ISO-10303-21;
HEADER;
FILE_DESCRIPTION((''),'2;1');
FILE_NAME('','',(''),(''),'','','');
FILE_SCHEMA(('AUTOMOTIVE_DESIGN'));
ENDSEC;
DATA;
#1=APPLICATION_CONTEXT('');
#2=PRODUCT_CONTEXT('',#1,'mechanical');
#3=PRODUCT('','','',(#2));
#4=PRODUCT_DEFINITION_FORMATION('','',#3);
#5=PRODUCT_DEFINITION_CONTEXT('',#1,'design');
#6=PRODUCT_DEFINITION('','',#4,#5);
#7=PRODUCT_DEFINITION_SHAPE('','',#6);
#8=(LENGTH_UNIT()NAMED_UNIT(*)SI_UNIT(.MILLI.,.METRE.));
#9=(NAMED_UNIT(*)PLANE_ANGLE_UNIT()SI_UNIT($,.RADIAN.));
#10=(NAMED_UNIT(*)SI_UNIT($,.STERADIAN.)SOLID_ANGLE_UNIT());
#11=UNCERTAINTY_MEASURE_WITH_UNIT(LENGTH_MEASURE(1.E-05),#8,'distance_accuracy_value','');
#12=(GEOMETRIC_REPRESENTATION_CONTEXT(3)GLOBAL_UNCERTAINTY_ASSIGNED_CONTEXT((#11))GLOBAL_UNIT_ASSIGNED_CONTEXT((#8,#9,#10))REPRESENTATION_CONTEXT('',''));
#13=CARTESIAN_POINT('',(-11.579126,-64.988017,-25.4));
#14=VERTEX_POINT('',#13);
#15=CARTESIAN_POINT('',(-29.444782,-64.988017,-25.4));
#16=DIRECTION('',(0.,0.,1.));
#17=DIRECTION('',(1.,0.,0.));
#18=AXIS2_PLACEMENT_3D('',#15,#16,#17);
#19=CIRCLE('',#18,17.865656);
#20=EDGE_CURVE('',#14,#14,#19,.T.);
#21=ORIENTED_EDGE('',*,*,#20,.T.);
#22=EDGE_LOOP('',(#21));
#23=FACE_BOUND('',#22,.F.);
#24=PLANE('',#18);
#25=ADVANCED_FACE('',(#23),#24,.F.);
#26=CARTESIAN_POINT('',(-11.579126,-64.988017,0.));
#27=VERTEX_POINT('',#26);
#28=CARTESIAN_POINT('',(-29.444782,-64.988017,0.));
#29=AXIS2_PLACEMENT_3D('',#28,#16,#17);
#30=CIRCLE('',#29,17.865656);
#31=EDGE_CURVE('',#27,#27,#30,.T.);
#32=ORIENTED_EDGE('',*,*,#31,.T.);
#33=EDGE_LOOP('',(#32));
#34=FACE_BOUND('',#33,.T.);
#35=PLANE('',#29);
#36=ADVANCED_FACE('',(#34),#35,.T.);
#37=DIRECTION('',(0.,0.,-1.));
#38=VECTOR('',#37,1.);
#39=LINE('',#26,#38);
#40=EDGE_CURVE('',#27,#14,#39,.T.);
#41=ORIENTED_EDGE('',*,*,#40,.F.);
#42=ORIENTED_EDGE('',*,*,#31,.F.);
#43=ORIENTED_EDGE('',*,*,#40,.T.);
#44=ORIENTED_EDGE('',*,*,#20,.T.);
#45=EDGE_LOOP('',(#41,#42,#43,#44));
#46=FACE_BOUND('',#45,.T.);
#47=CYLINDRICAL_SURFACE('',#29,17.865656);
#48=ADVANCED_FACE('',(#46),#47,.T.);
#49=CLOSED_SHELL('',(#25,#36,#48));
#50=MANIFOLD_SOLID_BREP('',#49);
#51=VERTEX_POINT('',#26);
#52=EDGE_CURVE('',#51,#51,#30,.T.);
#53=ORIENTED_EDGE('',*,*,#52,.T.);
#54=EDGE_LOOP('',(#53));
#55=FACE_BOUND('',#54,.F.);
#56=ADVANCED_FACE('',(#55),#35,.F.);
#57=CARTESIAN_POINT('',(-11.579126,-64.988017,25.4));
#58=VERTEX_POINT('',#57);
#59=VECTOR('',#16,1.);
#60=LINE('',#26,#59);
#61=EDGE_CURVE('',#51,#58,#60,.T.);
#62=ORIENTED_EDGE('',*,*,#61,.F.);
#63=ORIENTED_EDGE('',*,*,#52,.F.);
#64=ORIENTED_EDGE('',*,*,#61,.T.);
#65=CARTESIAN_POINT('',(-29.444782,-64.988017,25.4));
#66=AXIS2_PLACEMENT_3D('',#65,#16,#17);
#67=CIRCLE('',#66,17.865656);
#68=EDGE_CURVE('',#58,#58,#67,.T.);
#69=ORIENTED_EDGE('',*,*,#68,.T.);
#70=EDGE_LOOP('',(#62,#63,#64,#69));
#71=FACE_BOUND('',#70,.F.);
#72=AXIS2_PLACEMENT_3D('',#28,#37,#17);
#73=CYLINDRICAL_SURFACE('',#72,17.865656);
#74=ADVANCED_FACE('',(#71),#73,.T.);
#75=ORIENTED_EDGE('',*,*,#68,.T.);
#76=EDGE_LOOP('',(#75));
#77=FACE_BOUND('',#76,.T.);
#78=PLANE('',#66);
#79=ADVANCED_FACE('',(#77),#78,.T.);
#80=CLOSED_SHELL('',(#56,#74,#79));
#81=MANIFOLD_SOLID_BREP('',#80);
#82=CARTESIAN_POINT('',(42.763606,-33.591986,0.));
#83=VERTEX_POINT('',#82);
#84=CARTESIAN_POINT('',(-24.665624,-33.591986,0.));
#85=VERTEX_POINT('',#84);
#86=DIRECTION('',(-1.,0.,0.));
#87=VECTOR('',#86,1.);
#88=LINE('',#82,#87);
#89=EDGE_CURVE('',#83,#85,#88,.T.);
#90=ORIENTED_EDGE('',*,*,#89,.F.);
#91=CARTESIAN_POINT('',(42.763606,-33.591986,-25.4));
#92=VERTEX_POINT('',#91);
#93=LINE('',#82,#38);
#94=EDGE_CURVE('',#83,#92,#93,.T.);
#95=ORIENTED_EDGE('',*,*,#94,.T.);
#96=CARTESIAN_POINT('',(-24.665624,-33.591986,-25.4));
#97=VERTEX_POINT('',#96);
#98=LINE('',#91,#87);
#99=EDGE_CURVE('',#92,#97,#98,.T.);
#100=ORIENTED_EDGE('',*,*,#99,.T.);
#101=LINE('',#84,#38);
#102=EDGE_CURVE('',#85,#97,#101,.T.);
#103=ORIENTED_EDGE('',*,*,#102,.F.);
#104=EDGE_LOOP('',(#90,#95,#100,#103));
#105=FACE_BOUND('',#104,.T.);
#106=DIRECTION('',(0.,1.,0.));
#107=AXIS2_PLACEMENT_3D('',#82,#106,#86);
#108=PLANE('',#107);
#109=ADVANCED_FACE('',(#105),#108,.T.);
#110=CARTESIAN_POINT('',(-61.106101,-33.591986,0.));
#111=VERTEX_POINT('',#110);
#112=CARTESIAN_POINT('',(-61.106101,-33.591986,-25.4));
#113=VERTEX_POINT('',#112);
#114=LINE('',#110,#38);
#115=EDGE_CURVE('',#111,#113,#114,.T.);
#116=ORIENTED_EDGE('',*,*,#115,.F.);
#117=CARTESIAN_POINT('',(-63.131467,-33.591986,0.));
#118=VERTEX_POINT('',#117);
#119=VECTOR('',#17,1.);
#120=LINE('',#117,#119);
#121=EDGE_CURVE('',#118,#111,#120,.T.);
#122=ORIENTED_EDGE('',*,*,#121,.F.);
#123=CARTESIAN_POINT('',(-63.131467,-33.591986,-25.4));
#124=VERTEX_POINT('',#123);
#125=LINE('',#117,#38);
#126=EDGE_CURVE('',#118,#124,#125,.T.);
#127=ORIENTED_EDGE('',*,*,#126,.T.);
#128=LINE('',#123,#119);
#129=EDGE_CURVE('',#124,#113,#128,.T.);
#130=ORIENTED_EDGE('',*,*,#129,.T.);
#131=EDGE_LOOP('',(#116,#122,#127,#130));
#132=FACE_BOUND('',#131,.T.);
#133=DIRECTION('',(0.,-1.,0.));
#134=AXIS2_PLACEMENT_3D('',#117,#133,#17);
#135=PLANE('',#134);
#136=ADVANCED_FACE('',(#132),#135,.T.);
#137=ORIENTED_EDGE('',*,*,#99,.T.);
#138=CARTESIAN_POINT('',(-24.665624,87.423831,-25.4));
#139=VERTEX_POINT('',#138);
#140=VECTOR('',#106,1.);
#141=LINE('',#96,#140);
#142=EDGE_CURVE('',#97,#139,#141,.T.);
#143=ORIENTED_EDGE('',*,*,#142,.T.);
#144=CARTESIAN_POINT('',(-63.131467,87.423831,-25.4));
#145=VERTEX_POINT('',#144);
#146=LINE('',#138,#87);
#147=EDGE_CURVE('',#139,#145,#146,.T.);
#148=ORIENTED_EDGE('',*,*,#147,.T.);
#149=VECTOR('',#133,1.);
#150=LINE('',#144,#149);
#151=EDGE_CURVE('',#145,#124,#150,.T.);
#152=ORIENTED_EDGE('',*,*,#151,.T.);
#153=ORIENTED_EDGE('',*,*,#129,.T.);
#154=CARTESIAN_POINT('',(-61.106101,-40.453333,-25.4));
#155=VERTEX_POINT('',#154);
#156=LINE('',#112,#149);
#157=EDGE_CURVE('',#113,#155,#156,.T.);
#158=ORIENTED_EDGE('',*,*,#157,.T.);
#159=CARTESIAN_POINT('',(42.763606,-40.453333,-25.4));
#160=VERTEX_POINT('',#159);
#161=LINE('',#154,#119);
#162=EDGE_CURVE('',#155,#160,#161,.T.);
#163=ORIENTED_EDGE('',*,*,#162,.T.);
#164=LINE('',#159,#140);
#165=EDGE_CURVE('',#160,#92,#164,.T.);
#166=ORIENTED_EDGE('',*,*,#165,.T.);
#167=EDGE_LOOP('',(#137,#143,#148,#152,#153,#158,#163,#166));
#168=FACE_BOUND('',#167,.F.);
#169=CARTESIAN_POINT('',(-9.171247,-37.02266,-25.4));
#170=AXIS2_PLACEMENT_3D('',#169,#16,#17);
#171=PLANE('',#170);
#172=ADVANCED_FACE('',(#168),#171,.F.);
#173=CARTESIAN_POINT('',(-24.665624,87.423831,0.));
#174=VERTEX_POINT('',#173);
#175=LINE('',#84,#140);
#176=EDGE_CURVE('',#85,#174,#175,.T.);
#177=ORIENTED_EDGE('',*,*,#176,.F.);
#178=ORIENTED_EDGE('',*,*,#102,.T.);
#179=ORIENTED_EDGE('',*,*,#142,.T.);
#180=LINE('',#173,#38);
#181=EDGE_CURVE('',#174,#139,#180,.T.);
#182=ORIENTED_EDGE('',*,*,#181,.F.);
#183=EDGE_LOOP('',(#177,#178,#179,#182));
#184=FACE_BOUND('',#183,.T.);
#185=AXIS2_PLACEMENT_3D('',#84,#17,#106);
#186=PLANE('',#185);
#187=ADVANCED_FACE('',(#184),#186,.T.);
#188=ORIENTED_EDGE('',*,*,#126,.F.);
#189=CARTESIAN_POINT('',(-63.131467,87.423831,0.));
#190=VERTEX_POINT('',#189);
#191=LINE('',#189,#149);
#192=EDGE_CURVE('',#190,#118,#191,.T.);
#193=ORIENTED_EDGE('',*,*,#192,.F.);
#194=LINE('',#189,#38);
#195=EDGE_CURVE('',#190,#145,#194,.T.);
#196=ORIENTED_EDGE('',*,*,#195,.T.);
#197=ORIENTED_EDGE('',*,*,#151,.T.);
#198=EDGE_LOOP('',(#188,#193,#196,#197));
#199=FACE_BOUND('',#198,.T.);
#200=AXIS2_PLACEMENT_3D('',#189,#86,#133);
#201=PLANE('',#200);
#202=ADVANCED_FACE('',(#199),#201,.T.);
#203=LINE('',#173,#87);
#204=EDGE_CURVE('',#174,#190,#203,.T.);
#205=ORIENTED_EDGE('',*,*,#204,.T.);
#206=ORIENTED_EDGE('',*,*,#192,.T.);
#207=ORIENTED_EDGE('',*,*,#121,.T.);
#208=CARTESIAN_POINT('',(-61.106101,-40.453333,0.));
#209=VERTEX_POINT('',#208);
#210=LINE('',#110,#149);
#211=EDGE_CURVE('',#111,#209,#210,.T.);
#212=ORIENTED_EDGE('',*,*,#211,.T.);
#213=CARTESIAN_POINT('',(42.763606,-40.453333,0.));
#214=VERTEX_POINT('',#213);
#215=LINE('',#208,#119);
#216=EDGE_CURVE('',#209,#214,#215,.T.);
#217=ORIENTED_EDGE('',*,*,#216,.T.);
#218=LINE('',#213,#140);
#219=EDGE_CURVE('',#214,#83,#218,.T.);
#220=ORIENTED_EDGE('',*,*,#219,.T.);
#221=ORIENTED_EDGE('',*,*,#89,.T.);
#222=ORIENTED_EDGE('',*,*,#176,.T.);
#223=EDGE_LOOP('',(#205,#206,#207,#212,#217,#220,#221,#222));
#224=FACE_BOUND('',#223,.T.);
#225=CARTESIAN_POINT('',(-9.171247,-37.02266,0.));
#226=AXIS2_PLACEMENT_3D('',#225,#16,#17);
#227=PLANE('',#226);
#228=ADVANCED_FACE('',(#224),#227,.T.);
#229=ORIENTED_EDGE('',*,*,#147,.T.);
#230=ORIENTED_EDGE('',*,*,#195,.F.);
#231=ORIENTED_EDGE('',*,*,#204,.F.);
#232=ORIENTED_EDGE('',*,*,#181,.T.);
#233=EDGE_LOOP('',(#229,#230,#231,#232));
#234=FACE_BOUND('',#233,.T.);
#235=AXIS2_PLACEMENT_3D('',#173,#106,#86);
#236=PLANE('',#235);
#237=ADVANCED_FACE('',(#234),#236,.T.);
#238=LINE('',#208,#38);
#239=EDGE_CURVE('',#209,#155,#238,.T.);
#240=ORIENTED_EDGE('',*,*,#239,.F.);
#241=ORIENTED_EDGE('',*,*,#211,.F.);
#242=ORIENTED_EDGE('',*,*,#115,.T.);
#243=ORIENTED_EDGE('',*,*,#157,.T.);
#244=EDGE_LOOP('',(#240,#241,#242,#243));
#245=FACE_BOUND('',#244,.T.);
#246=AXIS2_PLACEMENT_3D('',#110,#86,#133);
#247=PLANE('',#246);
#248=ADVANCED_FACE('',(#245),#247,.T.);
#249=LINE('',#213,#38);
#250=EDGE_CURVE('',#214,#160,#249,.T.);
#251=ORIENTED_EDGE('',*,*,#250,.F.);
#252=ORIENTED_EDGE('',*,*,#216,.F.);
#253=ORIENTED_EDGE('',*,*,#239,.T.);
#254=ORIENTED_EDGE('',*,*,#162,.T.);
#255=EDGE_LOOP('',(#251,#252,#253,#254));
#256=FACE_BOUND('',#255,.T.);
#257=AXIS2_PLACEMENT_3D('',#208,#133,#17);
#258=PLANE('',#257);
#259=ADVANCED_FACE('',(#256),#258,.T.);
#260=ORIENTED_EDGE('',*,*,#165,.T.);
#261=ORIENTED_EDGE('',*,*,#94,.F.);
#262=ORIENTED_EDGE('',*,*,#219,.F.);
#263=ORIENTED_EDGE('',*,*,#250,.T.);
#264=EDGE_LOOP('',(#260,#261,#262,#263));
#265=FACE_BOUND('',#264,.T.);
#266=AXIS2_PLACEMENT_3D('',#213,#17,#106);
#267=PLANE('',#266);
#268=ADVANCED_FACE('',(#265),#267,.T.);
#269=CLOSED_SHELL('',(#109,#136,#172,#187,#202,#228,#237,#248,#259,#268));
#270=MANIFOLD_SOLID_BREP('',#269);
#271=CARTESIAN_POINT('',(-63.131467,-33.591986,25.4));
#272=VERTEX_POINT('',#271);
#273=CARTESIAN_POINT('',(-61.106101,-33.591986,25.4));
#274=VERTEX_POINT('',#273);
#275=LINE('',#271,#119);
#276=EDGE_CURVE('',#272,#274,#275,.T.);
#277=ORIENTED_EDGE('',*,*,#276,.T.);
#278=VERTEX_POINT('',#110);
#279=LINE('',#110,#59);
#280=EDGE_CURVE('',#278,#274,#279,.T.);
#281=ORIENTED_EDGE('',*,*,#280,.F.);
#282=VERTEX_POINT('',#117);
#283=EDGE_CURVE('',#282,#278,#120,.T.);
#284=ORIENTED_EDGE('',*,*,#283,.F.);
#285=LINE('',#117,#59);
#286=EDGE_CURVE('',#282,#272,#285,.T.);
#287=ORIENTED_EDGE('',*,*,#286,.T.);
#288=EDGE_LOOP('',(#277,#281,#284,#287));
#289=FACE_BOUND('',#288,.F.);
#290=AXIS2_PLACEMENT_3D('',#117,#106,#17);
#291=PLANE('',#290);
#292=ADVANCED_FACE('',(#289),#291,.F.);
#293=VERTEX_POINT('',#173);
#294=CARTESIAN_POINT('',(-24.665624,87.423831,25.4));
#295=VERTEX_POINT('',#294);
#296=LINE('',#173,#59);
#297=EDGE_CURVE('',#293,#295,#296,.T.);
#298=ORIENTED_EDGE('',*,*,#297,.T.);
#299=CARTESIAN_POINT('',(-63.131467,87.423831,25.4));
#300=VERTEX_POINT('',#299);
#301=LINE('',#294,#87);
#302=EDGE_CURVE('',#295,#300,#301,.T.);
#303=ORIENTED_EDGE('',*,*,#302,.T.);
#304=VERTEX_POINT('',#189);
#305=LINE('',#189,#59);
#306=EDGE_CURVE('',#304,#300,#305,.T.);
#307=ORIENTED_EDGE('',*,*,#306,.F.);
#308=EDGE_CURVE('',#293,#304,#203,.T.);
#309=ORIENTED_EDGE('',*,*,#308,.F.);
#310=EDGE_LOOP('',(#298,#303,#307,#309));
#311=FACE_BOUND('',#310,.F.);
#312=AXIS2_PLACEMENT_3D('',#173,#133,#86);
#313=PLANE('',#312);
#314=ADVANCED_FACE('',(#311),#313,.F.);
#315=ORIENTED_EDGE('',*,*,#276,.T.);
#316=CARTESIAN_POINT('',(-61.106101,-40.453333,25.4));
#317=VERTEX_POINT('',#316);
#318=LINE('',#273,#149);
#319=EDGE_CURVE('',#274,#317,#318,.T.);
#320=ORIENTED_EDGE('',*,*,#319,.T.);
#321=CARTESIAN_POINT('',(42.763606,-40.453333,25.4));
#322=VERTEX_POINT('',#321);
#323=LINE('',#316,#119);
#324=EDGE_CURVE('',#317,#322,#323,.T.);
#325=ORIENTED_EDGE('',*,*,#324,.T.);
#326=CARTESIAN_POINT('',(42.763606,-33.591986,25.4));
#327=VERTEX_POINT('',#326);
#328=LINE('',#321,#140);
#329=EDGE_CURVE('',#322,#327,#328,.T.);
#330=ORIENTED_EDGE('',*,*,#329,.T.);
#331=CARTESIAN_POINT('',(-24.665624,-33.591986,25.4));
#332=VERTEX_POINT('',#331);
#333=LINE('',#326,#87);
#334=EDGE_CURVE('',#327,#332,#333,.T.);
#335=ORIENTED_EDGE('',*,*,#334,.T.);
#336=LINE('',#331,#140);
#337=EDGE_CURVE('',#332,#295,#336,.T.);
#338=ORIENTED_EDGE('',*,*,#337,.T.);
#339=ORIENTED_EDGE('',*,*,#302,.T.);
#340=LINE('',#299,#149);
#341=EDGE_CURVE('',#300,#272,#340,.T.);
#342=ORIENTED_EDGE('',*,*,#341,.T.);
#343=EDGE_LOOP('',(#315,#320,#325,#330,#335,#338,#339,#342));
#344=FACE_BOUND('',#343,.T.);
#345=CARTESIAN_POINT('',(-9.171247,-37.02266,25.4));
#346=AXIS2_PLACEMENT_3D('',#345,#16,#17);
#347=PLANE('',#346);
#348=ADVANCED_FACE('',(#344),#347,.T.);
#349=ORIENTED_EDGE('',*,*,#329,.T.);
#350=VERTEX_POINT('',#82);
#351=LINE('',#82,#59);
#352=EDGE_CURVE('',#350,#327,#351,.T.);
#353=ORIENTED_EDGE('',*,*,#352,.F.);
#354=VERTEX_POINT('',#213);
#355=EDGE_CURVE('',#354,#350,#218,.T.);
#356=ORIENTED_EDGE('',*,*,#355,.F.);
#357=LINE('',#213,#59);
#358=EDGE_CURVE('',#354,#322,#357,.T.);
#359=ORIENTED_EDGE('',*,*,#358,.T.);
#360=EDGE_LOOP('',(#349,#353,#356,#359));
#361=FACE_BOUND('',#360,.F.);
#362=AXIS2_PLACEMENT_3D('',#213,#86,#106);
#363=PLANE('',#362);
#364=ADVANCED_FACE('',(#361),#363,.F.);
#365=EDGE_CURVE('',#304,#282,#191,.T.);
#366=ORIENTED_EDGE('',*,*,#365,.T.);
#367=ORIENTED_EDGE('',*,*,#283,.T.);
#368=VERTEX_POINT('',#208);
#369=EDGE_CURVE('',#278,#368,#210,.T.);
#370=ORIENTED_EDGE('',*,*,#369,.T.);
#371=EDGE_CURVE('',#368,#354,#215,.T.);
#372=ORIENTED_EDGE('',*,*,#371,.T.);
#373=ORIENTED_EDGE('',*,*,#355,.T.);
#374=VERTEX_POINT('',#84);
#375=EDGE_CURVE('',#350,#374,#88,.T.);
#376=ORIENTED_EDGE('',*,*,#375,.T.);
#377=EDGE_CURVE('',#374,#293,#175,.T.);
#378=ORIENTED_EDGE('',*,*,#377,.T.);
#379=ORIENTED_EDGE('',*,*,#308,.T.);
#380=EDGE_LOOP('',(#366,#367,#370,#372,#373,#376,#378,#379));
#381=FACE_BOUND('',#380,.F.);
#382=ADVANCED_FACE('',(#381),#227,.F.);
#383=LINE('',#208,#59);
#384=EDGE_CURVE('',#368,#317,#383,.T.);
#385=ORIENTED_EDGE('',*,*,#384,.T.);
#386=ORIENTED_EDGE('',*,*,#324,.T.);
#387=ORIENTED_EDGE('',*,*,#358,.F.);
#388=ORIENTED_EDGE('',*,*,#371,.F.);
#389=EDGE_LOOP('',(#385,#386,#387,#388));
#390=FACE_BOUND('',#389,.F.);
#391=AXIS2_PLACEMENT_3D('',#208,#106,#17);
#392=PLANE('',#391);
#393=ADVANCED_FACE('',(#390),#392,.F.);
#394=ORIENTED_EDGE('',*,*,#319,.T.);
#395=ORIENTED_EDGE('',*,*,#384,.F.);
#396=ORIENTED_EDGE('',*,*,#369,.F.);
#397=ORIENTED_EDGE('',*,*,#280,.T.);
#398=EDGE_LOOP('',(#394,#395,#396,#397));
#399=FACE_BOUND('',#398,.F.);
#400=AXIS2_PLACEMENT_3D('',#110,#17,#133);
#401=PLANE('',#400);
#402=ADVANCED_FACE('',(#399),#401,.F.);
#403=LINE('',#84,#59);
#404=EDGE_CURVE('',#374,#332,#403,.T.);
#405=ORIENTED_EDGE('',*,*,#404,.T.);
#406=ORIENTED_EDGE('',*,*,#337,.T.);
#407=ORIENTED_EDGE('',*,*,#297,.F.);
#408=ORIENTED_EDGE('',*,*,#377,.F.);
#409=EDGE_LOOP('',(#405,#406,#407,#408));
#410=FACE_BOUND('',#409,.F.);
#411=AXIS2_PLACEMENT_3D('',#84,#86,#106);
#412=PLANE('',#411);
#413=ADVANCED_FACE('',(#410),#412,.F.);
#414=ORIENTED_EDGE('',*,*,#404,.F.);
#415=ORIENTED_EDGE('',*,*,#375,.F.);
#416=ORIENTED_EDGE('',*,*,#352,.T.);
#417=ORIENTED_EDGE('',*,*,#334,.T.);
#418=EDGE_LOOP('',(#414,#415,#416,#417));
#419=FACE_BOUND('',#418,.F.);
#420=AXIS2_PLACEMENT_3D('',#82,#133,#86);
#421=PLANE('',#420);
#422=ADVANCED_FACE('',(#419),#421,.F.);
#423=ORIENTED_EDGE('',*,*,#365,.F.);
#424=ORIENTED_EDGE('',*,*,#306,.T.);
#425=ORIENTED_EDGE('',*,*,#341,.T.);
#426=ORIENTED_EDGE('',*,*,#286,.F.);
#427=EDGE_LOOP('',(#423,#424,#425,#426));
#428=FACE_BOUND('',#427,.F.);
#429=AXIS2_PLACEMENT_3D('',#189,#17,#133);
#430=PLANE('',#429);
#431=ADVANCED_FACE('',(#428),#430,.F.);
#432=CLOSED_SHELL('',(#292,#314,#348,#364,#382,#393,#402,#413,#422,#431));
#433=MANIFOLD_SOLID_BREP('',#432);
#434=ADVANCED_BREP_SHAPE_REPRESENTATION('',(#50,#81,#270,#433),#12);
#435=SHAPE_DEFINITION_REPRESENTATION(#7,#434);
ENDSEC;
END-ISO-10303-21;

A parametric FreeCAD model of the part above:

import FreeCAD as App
import Part
import Sketcher


def add_polygon(sketch, points):
    """Adds a closed chain of lines whose ends are joined by coincident constraints."""
    first, n = sketch.GeometryCount, len(points)
    for a, b in zip(points, points[1:] + points[:1]):
        sketch.addGeometry(Part.LineSegment(App.Vector(*a, 0), App.Vector(*b, 0)), False)
    for i in range(n):
        sketch.addConstraint(Sketcher.Constraint("Coincident", first + i, 2, first + (i + 1) % n, 1))

doc = App.newDocument("Part")
params = doc.addObject("Spreadsheet::Sheet", "Params")
for row, (alias, value) in enumerate([
    ("pad1_length", "1 in"),
    ("pad2_length", "1 in"),
], start=1):
    params.set(f"A{row}", alias)
    params.set(f"B{row}", "=" + value)
    params.setAlias(f"B{row}", alias)

body = doc.addObject("PartDesign::Body", "Body")
body.AllowCompound = True

# Sketch on XY plane
sketch1 = body.newObject("Sketcher::SketchObject", "Sketch")
sketch1.AttachmentSupport = (doc.getObject("XY_Plane"), [""])
sketch1.MapMode = "FlatFace"
add_polygon(sketch1, [(-61.1, -40.5), (42.8, -40.5), (42.8, -33.6), (-24.7, -33.6), (-24.7, 87.4), (-63.1, 87.4), (-63.1, -33.6), (-61.1, -33.6)])  # lines 0-7
sketch1.addGeometry(Part.Circle(App.Vector(-29.4, -65, 0), App.Vector(0, 0, 1), 17.9), False)  # 8
sketch1.addConstraint(Sketcher.Constraint("Horizontal", 0))
sketch1.addConstraint(Sketcher.Constraint("Vertical", 1))
sketch1.addConstraint(Sketcher.Constraint("Horizontal", 2))
sketch1.addConstraint(Sketcher.Constraint("Vertical", 3))
sketch1.addConstraint(Sketcher.Constraint("Horizontal", 4))
sketch1.addConstraint(Sketcher.Constraint("Vertical", 5))
sketch1.addConstraint(Sketcher.Constraint("Horizontal", 6))
sketch1.addConstraint(Sketcher.Constraint("Vertical", 7))
sketch1.addConstraint(Sketcher.Constraint("Horizontal", 2, 2, 5, 2))
sketch1.addConstraint(Sketcher.Constraint("Diameter", 8, 35.731312))
sketch1.addConstraint(Sketcher.Constraint("DistanceX", 2, 2, 2, 1, 67.42923))
sketch1.addConstraint(Sketcher.Constraint("DistanceX", 6, 2, -1, 1, 61.106101))
sketch1.addConstraint(Sketcher.Constraint("DistanceX", 0, 1, 0, 2, 103.869707))
sketch1.addConstraint(Sketcher.Constraint("DistanceX", 4, 2, 4, 1, 38.465843))
sketch1.addConstraint(Sketcher.Constraint("DistanceY", 1, 1, 1, 2, 6.861347))
sketch1.addConstraint(Sketcher.Constraint("DistanceY", 3, 1, 3, 2, 121.015817))
sketch1.addConstraint(Sketcher.Constraint("DistanceX", 8, 3, -1, 1, 29.444782))
sketch1.addConstraint(Sketcher.Constraint("DistanceY", -1, 1, 3, 2, 87.423831))
sketch1.addConstraint(Sketcher.Constraint("DistanceY", 8, 3, 1, 2, 31.396031))
pad1 = body.newObject("PartDesign::Pad", "Pad")
pad1.Profile = sketch1
pad1.setExpression("Length", "Params.pad1_length")
pad1.Reversed = True
body2 = doc.addObject("PartDesign::Body", "Body001")
body2.AllowCompound = True

# Sketch on XY plane
sketch2 = body2.newObject("Sketcher::SketchObject", "Sketch001")
sketch2.AttachmentSupport = (doc.getObject("XY_Plane001"), [""])
sketch2.MapMode = "FlatFace"
add_polygon(sketch2, [(-61.1, -40.5), (42.8, -40.5), (42.8, -33.6), (-24.7, -33.6), (-24.7, 87.4), (-63.1, 87.4), (-63.1, -33.6), (-61.1, -33.6)])  # lines 0-7
sketch2.addGeometry(Part.Circle(App.Vector(-29.4, -65, 0), App.Vector(0, 0, 1), 17.9), False)  # 8
sketch2.addConstraint(Sketcher.Constraint("Horizontal", 0))
sketch2.addConstraint(Sketcher.Constraint("Vertical", 1))
sketch2.addConstraint(Sketcher.Constraint("Horizontal", 2))
sketch2.addConstraint(Sketcher.Constraint("Vertical", 3))
sketch2.addConstraint(Sketcher.Constraint("Horizontal", 4))
sketch2.addConstraint(Sketcher.Constraint("Vertical", 5))
sketch2.addConstraint(Sketcher.Constraint("Horizontal", 6))
sketch2.addConstraint(Sketcher.Constraint("Vertical", 7))
sketch2.addConstraint(Sketcher.Constraint("Horizontal", 2, 2, 5, 2))
sketch2.addConstraint(Sketcher.Constraint("Diameter", 8, 35.731312))
sketch2.addConstraint(Sketcher.Constraint("DistanceX", 2, 2, 2, 1, 67.42923))
sketch2.addConstraint(Sketcher.Constraint("DistanceX", 6, 2, -1, 1, 61.106101))
sketch2.addConstraint(Sketcher.Constraint("DistanceX", 0, 1, 0, 2, 103.869707))
sketch2.addConstraint(Sketcher.Constraint("DistanceX", 4, 2, 4, 1, 38.465843))
sketch2.addConstraint(Sketcher.Constraint("DistanceY", 1, 1, 1, 2, 6.861347))
sketch2.addConstraint(Sketcher.Constraint("DistanceY", 3, 1, 3, 2, 121.015817))
sketch2.addConstraint(Sketcher.Constraint("DistanceX", 8, 3, -1, 1, 29.444782))
sketch2.addConstraint(Sketcher.Constraint("DistanceY", -1, 1, 3, 2, 87.423831))
sketch2.addConstraint(Sketcher.Constraint("DistanceY", 8, 3, 1, 2, 31.396031))
pad2 = body2.newObject("PartDesign::Pad", "Pad001")
pad2.Profile = sketch2
pad2.setExpression("Length", "Params.pad2_length")

doc.recompute()
